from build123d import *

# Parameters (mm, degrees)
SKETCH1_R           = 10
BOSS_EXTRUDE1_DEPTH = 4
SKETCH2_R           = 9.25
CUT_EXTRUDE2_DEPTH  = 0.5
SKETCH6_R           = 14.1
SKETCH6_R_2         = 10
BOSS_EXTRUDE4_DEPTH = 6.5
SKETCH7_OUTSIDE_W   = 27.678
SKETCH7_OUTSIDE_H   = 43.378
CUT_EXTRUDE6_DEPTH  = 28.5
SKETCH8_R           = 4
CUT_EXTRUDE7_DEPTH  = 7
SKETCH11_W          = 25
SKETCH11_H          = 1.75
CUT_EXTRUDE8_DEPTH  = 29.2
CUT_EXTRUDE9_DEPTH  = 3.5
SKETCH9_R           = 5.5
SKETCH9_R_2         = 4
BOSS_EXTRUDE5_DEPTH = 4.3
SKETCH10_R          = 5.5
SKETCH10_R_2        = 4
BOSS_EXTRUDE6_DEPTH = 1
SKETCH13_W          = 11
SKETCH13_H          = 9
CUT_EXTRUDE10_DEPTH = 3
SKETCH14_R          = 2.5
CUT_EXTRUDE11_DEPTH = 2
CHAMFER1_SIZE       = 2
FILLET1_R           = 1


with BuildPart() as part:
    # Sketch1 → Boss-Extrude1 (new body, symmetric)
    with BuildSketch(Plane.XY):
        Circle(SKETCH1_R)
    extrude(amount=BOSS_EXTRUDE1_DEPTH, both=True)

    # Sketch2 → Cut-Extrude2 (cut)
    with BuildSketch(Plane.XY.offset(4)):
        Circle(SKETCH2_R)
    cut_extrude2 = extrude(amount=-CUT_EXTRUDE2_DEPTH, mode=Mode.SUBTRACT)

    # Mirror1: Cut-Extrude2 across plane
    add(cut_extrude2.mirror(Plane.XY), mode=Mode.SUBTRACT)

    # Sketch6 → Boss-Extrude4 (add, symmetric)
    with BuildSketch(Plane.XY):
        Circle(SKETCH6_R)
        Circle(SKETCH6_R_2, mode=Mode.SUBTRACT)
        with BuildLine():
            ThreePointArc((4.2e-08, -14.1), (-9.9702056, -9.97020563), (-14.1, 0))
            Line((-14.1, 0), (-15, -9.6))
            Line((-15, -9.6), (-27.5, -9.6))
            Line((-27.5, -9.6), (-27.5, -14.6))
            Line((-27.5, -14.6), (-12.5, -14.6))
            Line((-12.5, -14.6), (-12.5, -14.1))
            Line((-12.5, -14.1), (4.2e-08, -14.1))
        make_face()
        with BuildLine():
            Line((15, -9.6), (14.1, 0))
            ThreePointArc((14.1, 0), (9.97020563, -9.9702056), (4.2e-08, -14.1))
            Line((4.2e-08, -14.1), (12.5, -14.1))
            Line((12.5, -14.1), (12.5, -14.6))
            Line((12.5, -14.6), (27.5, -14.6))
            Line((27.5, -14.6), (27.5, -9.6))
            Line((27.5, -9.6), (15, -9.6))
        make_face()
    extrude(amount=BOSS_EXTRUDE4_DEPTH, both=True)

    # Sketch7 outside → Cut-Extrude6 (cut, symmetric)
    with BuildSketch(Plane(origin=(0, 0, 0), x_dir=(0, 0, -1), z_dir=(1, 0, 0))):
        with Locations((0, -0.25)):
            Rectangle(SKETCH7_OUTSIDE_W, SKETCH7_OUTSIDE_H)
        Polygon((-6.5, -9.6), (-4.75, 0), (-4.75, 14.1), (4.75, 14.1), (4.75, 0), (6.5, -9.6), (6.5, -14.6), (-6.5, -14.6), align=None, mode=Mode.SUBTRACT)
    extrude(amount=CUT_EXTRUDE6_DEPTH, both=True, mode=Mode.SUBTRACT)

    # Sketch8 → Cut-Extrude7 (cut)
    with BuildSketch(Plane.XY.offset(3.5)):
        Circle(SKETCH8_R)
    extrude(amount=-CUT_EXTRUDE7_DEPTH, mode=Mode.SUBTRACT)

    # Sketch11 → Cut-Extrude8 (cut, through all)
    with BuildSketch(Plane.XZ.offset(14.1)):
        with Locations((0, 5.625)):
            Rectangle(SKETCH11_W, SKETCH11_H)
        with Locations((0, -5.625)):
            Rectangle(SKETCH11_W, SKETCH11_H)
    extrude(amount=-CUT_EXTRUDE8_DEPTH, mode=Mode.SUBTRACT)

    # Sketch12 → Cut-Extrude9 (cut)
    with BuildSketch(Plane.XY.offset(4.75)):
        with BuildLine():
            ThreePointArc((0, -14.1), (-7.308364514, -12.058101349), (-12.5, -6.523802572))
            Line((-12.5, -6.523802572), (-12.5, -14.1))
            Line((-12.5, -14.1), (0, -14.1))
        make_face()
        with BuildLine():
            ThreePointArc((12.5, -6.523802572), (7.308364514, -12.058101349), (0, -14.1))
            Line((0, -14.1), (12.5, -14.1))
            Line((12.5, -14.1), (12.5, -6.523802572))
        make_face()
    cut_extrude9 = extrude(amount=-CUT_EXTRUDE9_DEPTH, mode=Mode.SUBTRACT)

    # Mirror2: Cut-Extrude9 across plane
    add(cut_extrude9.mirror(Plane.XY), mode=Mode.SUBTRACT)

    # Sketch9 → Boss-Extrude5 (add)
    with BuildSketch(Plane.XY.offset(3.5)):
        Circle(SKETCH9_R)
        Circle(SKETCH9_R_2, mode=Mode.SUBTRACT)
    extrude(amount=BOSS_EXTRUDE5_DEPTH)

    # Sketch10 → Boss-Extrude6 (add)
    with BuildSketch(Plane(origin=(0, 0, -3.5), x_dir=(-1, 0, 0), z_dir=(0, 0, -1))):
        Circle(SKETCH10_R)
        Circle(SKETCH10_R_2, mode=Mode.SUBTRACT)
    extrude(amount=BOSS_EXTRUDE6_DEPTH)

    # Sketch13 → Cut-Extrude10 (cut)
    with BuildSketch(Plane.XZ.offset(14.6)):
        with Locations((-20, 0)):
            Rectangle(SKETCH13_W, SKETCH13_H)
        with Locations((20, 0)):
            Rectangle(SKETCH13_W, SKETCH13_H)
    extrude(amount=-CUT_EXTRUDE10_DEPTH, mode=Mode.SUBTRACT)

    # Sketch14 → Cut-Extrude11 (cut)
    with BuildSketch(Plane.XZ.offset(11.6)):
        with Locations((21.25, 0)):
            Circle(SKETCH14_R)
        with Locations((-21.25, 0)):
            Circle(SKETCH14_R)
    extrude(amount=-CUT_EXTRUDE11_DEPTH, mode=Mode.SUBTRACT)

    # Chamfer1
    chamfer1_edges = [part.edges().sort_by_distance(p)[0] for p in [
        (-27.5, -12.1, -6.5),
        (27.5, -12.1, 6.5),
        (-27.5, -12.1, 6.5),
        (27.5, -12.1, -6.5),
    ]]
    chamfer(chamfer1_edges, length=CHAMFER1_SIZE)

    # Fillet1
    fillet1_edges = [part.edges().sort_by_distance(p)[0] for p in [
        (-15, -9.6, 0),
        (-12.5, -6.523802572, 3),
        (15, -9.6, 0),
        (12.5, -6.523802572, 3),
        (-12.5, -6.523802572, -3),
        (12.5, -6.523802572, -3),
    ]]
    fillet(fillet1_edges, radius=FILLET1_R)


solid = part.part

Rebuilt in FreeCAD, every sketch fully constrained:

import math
import FreeCAD as App
import Part
import Sketcher
from FreeCAD import Vector


def edges_at(feature, points):
    """Names of the edges that pass closest to the given points."""
    edges = feature.Shape.Edges
    near = lambda p: min(range(len(edges)), key=lambda i: edges[i].distToShape(Part.Vertex(*p))[0])
    return sorted({f"Edge{near(p) + 1}" for p in points})


def add_polygon(sketch, points):
    """Adds a closed chain of lines whose ends are joined by coincident constraints."""
    first, n = sketch.GeometryCount, len(points)
    for a, b in zip(points, points[1:] + points[:1]):
        sketch.addGeometry(Part.LineSegment(App.Vector(*a, 0), App.Vector(*b, 0)), False)
    for i in range(n):
        sketch.addConstraint(Sketcher.Constraint("Coincident", first + i, 2, first + (i + 1) % n, 1))

doc = App.newDocument("Part")
body = doc.addObject("PartDesign::Body", "Body")

# Sketch on XY plane
sketch1 = body.newObject("Sketcher::SketchObject", "Sketch")
sketch1.AttachmentSupport = (doc.getObject("XY_Plane"), [""])
sketch1.MapMode = "FlatFace"
sketch1.addGeometry(Part.Circle(Vector(0, 0, 0), Vector(0, 0, 1), 10), False)
sketch1.addConstraint([
    Sketcher.Constraint("Coincident", 0, 3, -1, 1),
    Sketcher.Constraint("Diameter", 0, 20.0),
])
pad1 = body.newObject("PartDesign::Pad", "Pad")
pad1.Profile = sketch1
pad1.Length = 8
pad1.Midplane = True

# Sketch on XY plane
sketch2 = body.newObject("Sketcher::SketchObject", "Sketch001")
sketch2.AttachmentSupport = (doc.getObject("XY_Plane"), [""])
sketch2.MapMode = "FlatFace"
sketch2.AttachmentOffset = App.Placement(Vector(0, 0, 4), App.Rotation())
sketch2.addGeometry(Part.Circle(Vector(0, 0, 0), Vector(0, 0, 1), 9), False)
sketch2.addConstraint([
    Sketcher.Constraint("Coincident", 0, 3, -1, 1),
    Sketcher.Constraint("Diameter", 0, 18.5),
])
pocket1 = body.newObject("PartDesign::Pocket", "Pocket")
pocket1.Profile = sketch2
pocket1.Length = 0.5
doc.recompute()

mirrored = body.newObject("PartDesign::Mirrored", "Mirrored")
mirrored.Originals = [pocket1]
mirrored.MirrorPlane = (doc.getObject("XY_Plane"), [""])
body.Tip = mirrored

# Sketch on XY plane
sketch3 = body.newObject("Sketcher::SketchObject", "Sketch002")
sketch3.AttachmentSupport = (doc.getObject("XY_Plane"), [""])
sketch3.MapMode = "FlatFace"
sketch3.addGeometry([
    Part.LineSegment(Vector(-14.1, 0, 0), Vector(-15, -9.6, 0)),  # 0
    Part.LineSegment(Vector(-15, -9.6, 0), Vector(-27.5, -9.6, 0)),  # 1
    Part.LineSegment(Vector(-27.5, -9.6, 0), Vector(-27.5, -14.6, 0)),  # 2
    Part.LineSegment(Vector(-27.5, -14.6, 0), Vector(-12.5, -14.6, 0)),  # 3
    Part.LineSegment(Vector(-12.5, -14.6, 0), Vector(-12.5, -14.1, 0)),  # 4
    Part.LineSegment(Vector(-12.5, -14.1, 0), Vector(12.5, -14.1, 0)),  # 5
    Part.LineSegment(Vector(12.5, -14.1, 0), Vector(12.5, -14.6, 0)),  # 6
    Part.LineSegment(Vector(12.5, -14.6, 0), Vector(27.5, -14.6, 0)),  # 7
    Part.LineSegment(Vector(27.5, -14.6, 0), Vector(27.5, -9.6, 0)),  # 8
    Part.LineSegment(Vector(27.5, -9.6, 0), Vector(15, -9.6, 0)),  # 9
    Part.LineSegment(Vector(15, -9.6, 0), Vector(14.1, 0, 0)),  # 10
    Part.ArcOfCircle(Part.Circle(Vector(0, 0, 0), Vector(0, 0, 1), 14.1), math.radians(0), math.radians(180)),  # 11
    Part.Circle(Vector(0, 0, 0), Vector(0, 0, 1), 10),  # 12
], False)
sketch3.addConstraint([
    Sketcher.Constraint("Coincident", 0, 2, 1, 1),
    Sketcher.Constraint("Coincident", 1, 2, 2, 1),
    Sketcher.Constraint("Coincident", 2, 2, 3, 1),
    Sketcher.Constraint("Coincident", 3, 2, 4, 1),
    Sketcher.Constraint("Coincident", 4, 2, 5, 1),
    Sketcher.Constraint("Coincident", 5, 2, 6, 1),
    Sketcher.Constraint("Coincident", 6, 2, 7, 1),
    Sketcher.Constraint("Coincident", 7, 2, 8, 1),
    Sketcher.Constraint("Coincident", 8, 2, 9, 1),
    Sketcher.Constraint("Coincident", 9, 2, 10, 1),
    Sketcher.Constraint("Coincident", 10, 2, 11, 1),
    Sketcher.Constraint("Coincident", 11, 2, 0, 1),
    Sketcher.Constraint("Horizontal", 1),
    Sketcher.Constraint("Vertical", 2),
    Sketcher.Constraint("Horizontal", 3),
    Sketcher.Constraint("Vertical", 4),
    Sketcher.Constraint("Horizontal", 5),
    Sketcher.Constraint("Vertical", 6),
    Sketcher.Constraint("Horizontal", 7),
    Sketcher.Constraint("Vertical", 8),
    Sketcher.Constraint("Horizontal", 9),
    Sketcher.Constraint("Coincident", 11, 3, -1, 1),
    Sketcher.Constraint("Coincident", 12, 3, -1, 1),
    Sketcher.Constraint("Symmetric", 3, 2, 6, 2, -2),
    Sketcher.Constraint("Symmetric", 1, 2, 8, 2, -2),
    Sketcher.Constraint("PointOnObject", 10, 2, -1),
    Sketcher.Constraint("PointOnObject", 11, 2, -1),
    Sketcher.Constraint("Equal", 1, 9),
    Sketcher.Constraint("Diameter", 12, 20.0),
    Sketcher.Constraint("Radius", 11, 14.1),
    Sketcher.Constraint("DistanceX", 3, 1, 3, 2, 15.0),
    Sketcher.Constraint("DistanceX", 5, 1, 5, 2, 25.0),
    Sketcher.Constraint("DistanceY", 2, 2, 2, 1, 5.0),
    Sketcher.Constraint("DistanceX", 1, 2, 1, 1, 12.5),
    Sketcher.Constraint("DistanceY", 4, 1, 4, 2, 0.5),
    Sketcher.Constraint("DistanceY", 0, 2, -1, 1, 9.6),
])
pad2 = body.newObject("PartDesign::Pad", "Pad001")
pad2.Profile = sketch3
pad2.Length = 13
pad2.Midplane = True

# Sketch on YZ plane
sketch4 = body.newObject("Sketcher::SketchObject", "Sketch003")
sketch4.AttachmentSupport = (doc.getObject("YZ_Plane"), [""])
sketch4.MapMode = "FlatFace"
add_polygon(sketch4, [(21, 14), (-22, 14), (-22, -14), (21, -14)])  # lines 0-3
add_polygon(sketch4, [(-15, 6), (-10, 6), (0, 5), (14, 5), (14, -5), (0, -5), (-10, -6), (-15, -6)])  # lines 4-11
sketch4.addConstraint([
    Sketcher.Constraint("Horizontal", 0),
    Sketcher.Constraint("Vertical", 1),
    Sketcher.Constraint("Horizontal", 2),
    Sketcher.Constraint("Vertical", 3),
    Sketcher.Constraint("Horizontal", 4),
    Sketcher.Constraint("Horizontal", 6),
    Sketcher.Constraint("Vertical", 7),
    Sketcher.Constraint("Horizontal", 8),
    Sketcher.Constraint("Horizontal", 10),
    Sketcher.Constraint("Vertical", 11),
    Sketcher.Constraint("Symmetric", 5, 2, 8, 2, -1, 1),
    Sketcher.Constraint("Symmetric", 4, 2, 9, 2, -1),
    Sketcher.Constraint("PointOnObject", 5, 2, -2),
    Sketcher.Constraint("DistanceX", 4, 1, 4, 2, 5.0),
    Sketcher.Constraint("DistanceY", 11, 1, 11, 2, 13.0),
    Sketcher.Constraint("DistanceX", 6, 1, 6, 2, 14.1),
    Sketcher.Constraint("DistanceY", 7, 2, 7, 1, 9.5),
    Sketcher.Constraint("DistanceX", 4, 2, -1, 1, 9.6),
    Sketcher.Constraint("DistanceX", 0, 2, 0, 1, 43.378),
    Sketcher.Constraint("DistanceY", 1, 2, 1, 1, 27.678),
    Sketcher.Constraint("DistanceX", 0, 2, -1, 1, 21.939),
    Sketcher.Constraint("DistanceY", -1, 1, 0, 2, 13.839),
])
pocket2 = body.newObject("PartDesign::Pocket", "Pocket001")
pocket2.Profile = sketch4
pocket2.Length = 57
pocket2.Midplane = True

# Sketch on XY plane
sketch5 = body.newObject("Sketcher::SketchObject", "Sketch004")
sketch5.AttachmentSupport = (doc.getObject("XY_Plane"), [""])
sketch5.MapMode = "FlatFace"
sketch5.AttachmentOffset = App.Placement(Vector(0, 0, 3.5), App.Rotation())
sketch5.addGeometry(Part.Circle(Vector(0, 0, 0), Vector(0, 0, 1), 4), False)
sketch5.addConstraint([
    Sketcher.Constraint("Coincident", 0, 3, -1, 1),
    Sketcher.Constraint("Diameter", 0, 8.0),
])
pocket3 = body.newObject("PartDesign::Pocket", "Pocket002")
pocket3.Profile = sketch5
pocket3.Length = 7

# Sketch on XZ plane
sketch6 = body.newObject("Sketcher::SketchObject", "Sketch005")
sketch6.AttachmentSupport = (doc.getObject("XZ_Plane"), [""])
sketch6.MapMode = "FlatFace"
sketch6.AttachmentOffset = App.Placement(Vector(0, 0, 14.1), App.Rotation())
add_polygon(sketch6, [(-12.5, 6.5), (-12.5, 4.8), (12.5, 4.8), (12.5, 6.5)])  # lines 0-3
add_polygon(sketch6, [(-12.5, -4.8), (-12.5, -6.5), (12.5, -6.5), (12.5, -4.8)])  # lines 4-7
sketch6.addConstraint([
    Sketcher.Constraint("Vertical", 0),
    Sketcher.Constraint("Horizontal", 1),
    Sketcher.Constraint("Vertical", 2),
    Sketcher.Constraint("Horizontal", 3),
    Sketcher.Constraint("Vertical", 4),
    Sketcher.Constraint("Horizontal", 5),
    Sketcher.Constraint("Vertical", 6),
    Sketcher.Constraint("Horizontal", 7),
    Sketcher.Constraint("Symmetric", 2, 2, 4, 2, -1, 1),
    Sketcher.Constraint("Symmetric", 0, 2, 6, 2, -1, 1),
    Sketcher.Constraint("Vertical", 3, 2, 4, 2),
    Sketcher.Constraint("DistanceX", 1, 1, 1, 2, 25.0),
    Sketcher.Constraint("DistanceY", 4, 2, 3, 2, 13.0),
    Sketcher.Constraint("DistanceY", 0, 2, 0, 1, 1.75),
])
pocket4 = body.newObject("PartDesign::Pocket", "Pocket003")
pocket4.Profile = sketch6
pocket4.Type = "ThroughAll"

# Sketch on XY plane
sketch7 = body.newObject("Sketcher::SketchObject", "Sketch006")
sketch7.AttachmentSupport = (doc.getObject("XY_Plane"), [""])
sketch7.MapMode = "FlatFace"
sketch7.AttachmentOffset = App.Placement(Vector(0, 0, 4.75), App.Rotation())
sketch7.addGeometry([
    Part.ArcOfCircle(Part.Circle(Vector(0, 0, 0), Vector(0, 0, 1), 14), math.radians(-152), math.radians(-90)),  # 0
    Part.LineSegment(Vector(-12, -7, 0), Vector(-12, -14, 0)),  # 1
    Part.LineSegment(Vector(-12, -14, 0), Vector(0, -14, 0)),  # 2
    Part.ArcOfCircle(Part.Circle(Vector(0, 0, 0), Vector(0, 0, 1), 14), math.radians(-90), math.radians(-28)),  # 3
    Part.LineSegment(Vector(0, -14, 0), Vector(12, -14, 0)),  # 4
    Part.LineSegment(Vector(12, -14, 0), Vector(12, -7, 0)),  # 5
], False)
sketch7.addConstraint([
    Sketcher.Constraint("Coincident", 0, 1, 1, 1),
    Sketcher.Constraint("Coincident", 1, 2, 2, 1),
    Sketcher.Constraint("Tangent", 2, 2, 0, 2),
    Sketcher.Constraint("Tangent", 3, 1, 4, 1),
    Sketcher.Constraint("Coincident", 4, 2, 5, 1),
    Sketcher.Constraint("Coincident", 5, 2, 3, 2),
    Sketcher.Constraint("Vertical", 1),
    Sketcher.Constraint("Horizontal", 2),
    Sketcher.Constraint("Horizontal", 4),
    Sketcher.Constraint("Vertical", 5),
    Sketcher.Constraint("Coincident", 0, 3, -1, 1),
    Sketcher.Constraint("Coincident", 3, 3, -1, 1),
    Sketcher.Constraint("Equal", 0, 3),
    Sketcher.Constraint("Horizontal", 0, 1, 5, 2),
    Sketcher.Constraint("Radius", 0, 14.1),
    Sketcher.Constraint("DistanceX", 2, 1, 2, 2, 12.5),
])
pocket5 = body.newObject("PartDesign::Pocket", "Pocket004")
pocket5.Profile = sketch7
pocket5.Length = 3.5
doc.recompute()

mirrored2 = body.newObject("PartDesign::Mirrored", "Mirrored001")
mirrored2.Originals = [pocket5]
mirrored2.MirrorPlane = (doc.getObject("XY_Plane"), [""])
body.Tip = mirrored2

# Sketch on XY plane
sketch8 = body.newObject("Sketcher::SketchObject", "Sketch007")
sketch8.AttachmentSupport = (doc.getObject("XY_Plane"), [""])
sketch8.MapMode = "FlatFace"
sketch8.AttachmentOffset = App.Placement(Vector(0, 0, 3.5), App.Rotation())
sketch8.addGeometry([
    Part.Circle(Vector(0, 0, 0), Vector(0, 0, 1), 5.5),
    Part.Circle(Vector(0, 0, 0), Vector(0, 0, 1), 4),
], False)
sketch8.addConstraint([
    Sketcher.Constraint("Coincident", 0, 3, -1, 1),
    Sketcher.Constraint("Coincident", 1, 3, -1, 1),
    Sketcher.Constraint("Diameter", 0, 11.0),
    Sketcher.Constraint("Diameter", 1, 8.0),
])
pad3 = body.newObject("PartDesign::Pad", "Pad002")
pad3.Profile = sketch8
pad3.Length = 4.3

# Sketch on XY plane
sketch9 = body.newObject("Sketcher::SketchObject", "Sketch008")
sketch9.AttachmentSupport = (doc.getObject("XY_Plane"), [""])
sketch9.MapMode = "FlatFace"
sketch9.AttachmentOffset = App.Placement(Vector(0, 0, -3.5), App.Rotation())
sketch9.addGeometry([
    Part.Circle(Vector(0, 0, 0), Vector(0, 0, 1), 5.5),
    Part.Circle(Vector(0, 0, 0), Vector(0, 0, 1), 4),
], False)
sketch9.addConstraint([
    Sketcher.Constraint("Coincident", 0, 3, -1, 1),
    Sketcher.Constraint("Coincident", 1, 3, -1, 1),
    Sketcher.Constraint("Diameter", 0, 11.0),
    Sketcher.Constraint("Diameter", 1, 8.0),
])
pad4 = body.newObject("PartDesign::Pad", "Pad003")
pad4.Profile = sketch9
pad4.Length = 1
pad4.Reversed = True

# Sketch on XZ plane
sketch10 = body.newObject("Sketcher::SketchObject", "Sketch009")
sketch10.AttachmentSupport = (doc.getObject("XZ_Plane"), [""])
sketch10.MapMode = "FlatFace"
sketch10.AttachmentOffset = App.Placement(Vector(0, 0, 14.6), App.Rotation())
add_polygon(sketch10, [(-26, 4), (-26, -4), (-14, -4), (-14, 4)])  # lines 0-3
add_polygon(sketch10, [(14, 4), (14, -4), (26, -4), (26, 4)])  # lines 4-7
sketch10.addConstraint([
    Sketcher.Constraint("Vertical", 0),
    Sketcher.Constraint("Horizontal", 1),
    Sketcher.Constraint("Vertical", 2),
    Sketcher.Constraint("Horizontal", 3),
    Sketcher.Constraint("Vertical", 4),
    Sketcher.Constraint("Horizontal", 5),
    Sketcher.Constraint("Vertical", 6),
    Sketcher.Constraint("Horizontal", 7),
    Sketcher.Constraint("Symmetric", 2, 2, 4, 2, -1, 1),
    Sketcher.Constraint("Symmetric", 0, 2, 6, 2, -1, 1),
    Sketcher.Constraint("Horizontal", 1, 2, 4, 2),
    Sketcher.Constraint("DistanceX", 1, 1, 1, 2, 11.0),
    Sketcher.Constraint("DistanceY", 0, 2, 0, 1, 9.0),
    Sketcher.Constraint("DistanceX", 1, 2, 4, 2, 29.0),
])
pocket6 = body.newObject("PartDesign::Pocket", "Pocket005")
pocket6.Profile = sketch10
pocket6.Length = 3

# Sketch on XZ plane
sketch11 = body.newObject("Sketcher::SketchObject", "Sketch010")
sketch11.AttachmentSupport = (doc.getObject("XZ_Plane"), [""])
sketch11.MapMode = "FlatFace"
sketch11.AttachmentOffset = App.Placement(Vector(0, 0, 11.6), App.Rotation())
sketch11.addGeometry([
    Part.Circle(Vector(21.2, 0, 0), Vector(0, 0, 1), 2.5),
    Part.Circle(Vector(-21.2, 0, 0), Vector(0, 0, 1), 2.5),
], False)
sketch11.addConstraint([
    Sketcher.Constraint("Equal", 0, 1),
    Sketcher.Constraint("Symmetric", 0, 3, 1, 3, -1, 1),
    Sketcher.Constraint("PointOnObject", 0, 3, -1),
    Sketcher.Constraint("Diameter", 0, 5.0),
    Sketcher.Constraint("DistanceX", 1, 3, 0, 3, 42.5),
])
pocket7 = body.newObject("PartDesign::Pocket", "Pocket006")
pocket7.Profile = sketch11
pocket7.Length = 2
doc.recompute()

chamfer = body.newObject("PartDesign::Chamfer", "Chamfer")
chamfer.Base = (pocket7, edges_at(pocket7, [
    (-27.5, -12.1, -6.5),
    (27.5, -12.1, 6.5),
    (-27.5, -12.1, 6.5),
    (27.5, -12.1, -6.5),
]))
chamfer.Size = 2
doc.recompute()

fillet = body.newObject("PartDesign::Fillet", "Fillet")
fillet.Base = (chamfer, edges_at(chamfer, [
    (-15, -9.6, 0),
    (-12.5, -6.524, 3),
    (15, -9.6, 0),
    (12.5, -6.524, 3),
    (-12.5, -6.524, -3),
    (12.5, -6.524, -3),
]))
fillet.Radius = 1

doc.recompute()
